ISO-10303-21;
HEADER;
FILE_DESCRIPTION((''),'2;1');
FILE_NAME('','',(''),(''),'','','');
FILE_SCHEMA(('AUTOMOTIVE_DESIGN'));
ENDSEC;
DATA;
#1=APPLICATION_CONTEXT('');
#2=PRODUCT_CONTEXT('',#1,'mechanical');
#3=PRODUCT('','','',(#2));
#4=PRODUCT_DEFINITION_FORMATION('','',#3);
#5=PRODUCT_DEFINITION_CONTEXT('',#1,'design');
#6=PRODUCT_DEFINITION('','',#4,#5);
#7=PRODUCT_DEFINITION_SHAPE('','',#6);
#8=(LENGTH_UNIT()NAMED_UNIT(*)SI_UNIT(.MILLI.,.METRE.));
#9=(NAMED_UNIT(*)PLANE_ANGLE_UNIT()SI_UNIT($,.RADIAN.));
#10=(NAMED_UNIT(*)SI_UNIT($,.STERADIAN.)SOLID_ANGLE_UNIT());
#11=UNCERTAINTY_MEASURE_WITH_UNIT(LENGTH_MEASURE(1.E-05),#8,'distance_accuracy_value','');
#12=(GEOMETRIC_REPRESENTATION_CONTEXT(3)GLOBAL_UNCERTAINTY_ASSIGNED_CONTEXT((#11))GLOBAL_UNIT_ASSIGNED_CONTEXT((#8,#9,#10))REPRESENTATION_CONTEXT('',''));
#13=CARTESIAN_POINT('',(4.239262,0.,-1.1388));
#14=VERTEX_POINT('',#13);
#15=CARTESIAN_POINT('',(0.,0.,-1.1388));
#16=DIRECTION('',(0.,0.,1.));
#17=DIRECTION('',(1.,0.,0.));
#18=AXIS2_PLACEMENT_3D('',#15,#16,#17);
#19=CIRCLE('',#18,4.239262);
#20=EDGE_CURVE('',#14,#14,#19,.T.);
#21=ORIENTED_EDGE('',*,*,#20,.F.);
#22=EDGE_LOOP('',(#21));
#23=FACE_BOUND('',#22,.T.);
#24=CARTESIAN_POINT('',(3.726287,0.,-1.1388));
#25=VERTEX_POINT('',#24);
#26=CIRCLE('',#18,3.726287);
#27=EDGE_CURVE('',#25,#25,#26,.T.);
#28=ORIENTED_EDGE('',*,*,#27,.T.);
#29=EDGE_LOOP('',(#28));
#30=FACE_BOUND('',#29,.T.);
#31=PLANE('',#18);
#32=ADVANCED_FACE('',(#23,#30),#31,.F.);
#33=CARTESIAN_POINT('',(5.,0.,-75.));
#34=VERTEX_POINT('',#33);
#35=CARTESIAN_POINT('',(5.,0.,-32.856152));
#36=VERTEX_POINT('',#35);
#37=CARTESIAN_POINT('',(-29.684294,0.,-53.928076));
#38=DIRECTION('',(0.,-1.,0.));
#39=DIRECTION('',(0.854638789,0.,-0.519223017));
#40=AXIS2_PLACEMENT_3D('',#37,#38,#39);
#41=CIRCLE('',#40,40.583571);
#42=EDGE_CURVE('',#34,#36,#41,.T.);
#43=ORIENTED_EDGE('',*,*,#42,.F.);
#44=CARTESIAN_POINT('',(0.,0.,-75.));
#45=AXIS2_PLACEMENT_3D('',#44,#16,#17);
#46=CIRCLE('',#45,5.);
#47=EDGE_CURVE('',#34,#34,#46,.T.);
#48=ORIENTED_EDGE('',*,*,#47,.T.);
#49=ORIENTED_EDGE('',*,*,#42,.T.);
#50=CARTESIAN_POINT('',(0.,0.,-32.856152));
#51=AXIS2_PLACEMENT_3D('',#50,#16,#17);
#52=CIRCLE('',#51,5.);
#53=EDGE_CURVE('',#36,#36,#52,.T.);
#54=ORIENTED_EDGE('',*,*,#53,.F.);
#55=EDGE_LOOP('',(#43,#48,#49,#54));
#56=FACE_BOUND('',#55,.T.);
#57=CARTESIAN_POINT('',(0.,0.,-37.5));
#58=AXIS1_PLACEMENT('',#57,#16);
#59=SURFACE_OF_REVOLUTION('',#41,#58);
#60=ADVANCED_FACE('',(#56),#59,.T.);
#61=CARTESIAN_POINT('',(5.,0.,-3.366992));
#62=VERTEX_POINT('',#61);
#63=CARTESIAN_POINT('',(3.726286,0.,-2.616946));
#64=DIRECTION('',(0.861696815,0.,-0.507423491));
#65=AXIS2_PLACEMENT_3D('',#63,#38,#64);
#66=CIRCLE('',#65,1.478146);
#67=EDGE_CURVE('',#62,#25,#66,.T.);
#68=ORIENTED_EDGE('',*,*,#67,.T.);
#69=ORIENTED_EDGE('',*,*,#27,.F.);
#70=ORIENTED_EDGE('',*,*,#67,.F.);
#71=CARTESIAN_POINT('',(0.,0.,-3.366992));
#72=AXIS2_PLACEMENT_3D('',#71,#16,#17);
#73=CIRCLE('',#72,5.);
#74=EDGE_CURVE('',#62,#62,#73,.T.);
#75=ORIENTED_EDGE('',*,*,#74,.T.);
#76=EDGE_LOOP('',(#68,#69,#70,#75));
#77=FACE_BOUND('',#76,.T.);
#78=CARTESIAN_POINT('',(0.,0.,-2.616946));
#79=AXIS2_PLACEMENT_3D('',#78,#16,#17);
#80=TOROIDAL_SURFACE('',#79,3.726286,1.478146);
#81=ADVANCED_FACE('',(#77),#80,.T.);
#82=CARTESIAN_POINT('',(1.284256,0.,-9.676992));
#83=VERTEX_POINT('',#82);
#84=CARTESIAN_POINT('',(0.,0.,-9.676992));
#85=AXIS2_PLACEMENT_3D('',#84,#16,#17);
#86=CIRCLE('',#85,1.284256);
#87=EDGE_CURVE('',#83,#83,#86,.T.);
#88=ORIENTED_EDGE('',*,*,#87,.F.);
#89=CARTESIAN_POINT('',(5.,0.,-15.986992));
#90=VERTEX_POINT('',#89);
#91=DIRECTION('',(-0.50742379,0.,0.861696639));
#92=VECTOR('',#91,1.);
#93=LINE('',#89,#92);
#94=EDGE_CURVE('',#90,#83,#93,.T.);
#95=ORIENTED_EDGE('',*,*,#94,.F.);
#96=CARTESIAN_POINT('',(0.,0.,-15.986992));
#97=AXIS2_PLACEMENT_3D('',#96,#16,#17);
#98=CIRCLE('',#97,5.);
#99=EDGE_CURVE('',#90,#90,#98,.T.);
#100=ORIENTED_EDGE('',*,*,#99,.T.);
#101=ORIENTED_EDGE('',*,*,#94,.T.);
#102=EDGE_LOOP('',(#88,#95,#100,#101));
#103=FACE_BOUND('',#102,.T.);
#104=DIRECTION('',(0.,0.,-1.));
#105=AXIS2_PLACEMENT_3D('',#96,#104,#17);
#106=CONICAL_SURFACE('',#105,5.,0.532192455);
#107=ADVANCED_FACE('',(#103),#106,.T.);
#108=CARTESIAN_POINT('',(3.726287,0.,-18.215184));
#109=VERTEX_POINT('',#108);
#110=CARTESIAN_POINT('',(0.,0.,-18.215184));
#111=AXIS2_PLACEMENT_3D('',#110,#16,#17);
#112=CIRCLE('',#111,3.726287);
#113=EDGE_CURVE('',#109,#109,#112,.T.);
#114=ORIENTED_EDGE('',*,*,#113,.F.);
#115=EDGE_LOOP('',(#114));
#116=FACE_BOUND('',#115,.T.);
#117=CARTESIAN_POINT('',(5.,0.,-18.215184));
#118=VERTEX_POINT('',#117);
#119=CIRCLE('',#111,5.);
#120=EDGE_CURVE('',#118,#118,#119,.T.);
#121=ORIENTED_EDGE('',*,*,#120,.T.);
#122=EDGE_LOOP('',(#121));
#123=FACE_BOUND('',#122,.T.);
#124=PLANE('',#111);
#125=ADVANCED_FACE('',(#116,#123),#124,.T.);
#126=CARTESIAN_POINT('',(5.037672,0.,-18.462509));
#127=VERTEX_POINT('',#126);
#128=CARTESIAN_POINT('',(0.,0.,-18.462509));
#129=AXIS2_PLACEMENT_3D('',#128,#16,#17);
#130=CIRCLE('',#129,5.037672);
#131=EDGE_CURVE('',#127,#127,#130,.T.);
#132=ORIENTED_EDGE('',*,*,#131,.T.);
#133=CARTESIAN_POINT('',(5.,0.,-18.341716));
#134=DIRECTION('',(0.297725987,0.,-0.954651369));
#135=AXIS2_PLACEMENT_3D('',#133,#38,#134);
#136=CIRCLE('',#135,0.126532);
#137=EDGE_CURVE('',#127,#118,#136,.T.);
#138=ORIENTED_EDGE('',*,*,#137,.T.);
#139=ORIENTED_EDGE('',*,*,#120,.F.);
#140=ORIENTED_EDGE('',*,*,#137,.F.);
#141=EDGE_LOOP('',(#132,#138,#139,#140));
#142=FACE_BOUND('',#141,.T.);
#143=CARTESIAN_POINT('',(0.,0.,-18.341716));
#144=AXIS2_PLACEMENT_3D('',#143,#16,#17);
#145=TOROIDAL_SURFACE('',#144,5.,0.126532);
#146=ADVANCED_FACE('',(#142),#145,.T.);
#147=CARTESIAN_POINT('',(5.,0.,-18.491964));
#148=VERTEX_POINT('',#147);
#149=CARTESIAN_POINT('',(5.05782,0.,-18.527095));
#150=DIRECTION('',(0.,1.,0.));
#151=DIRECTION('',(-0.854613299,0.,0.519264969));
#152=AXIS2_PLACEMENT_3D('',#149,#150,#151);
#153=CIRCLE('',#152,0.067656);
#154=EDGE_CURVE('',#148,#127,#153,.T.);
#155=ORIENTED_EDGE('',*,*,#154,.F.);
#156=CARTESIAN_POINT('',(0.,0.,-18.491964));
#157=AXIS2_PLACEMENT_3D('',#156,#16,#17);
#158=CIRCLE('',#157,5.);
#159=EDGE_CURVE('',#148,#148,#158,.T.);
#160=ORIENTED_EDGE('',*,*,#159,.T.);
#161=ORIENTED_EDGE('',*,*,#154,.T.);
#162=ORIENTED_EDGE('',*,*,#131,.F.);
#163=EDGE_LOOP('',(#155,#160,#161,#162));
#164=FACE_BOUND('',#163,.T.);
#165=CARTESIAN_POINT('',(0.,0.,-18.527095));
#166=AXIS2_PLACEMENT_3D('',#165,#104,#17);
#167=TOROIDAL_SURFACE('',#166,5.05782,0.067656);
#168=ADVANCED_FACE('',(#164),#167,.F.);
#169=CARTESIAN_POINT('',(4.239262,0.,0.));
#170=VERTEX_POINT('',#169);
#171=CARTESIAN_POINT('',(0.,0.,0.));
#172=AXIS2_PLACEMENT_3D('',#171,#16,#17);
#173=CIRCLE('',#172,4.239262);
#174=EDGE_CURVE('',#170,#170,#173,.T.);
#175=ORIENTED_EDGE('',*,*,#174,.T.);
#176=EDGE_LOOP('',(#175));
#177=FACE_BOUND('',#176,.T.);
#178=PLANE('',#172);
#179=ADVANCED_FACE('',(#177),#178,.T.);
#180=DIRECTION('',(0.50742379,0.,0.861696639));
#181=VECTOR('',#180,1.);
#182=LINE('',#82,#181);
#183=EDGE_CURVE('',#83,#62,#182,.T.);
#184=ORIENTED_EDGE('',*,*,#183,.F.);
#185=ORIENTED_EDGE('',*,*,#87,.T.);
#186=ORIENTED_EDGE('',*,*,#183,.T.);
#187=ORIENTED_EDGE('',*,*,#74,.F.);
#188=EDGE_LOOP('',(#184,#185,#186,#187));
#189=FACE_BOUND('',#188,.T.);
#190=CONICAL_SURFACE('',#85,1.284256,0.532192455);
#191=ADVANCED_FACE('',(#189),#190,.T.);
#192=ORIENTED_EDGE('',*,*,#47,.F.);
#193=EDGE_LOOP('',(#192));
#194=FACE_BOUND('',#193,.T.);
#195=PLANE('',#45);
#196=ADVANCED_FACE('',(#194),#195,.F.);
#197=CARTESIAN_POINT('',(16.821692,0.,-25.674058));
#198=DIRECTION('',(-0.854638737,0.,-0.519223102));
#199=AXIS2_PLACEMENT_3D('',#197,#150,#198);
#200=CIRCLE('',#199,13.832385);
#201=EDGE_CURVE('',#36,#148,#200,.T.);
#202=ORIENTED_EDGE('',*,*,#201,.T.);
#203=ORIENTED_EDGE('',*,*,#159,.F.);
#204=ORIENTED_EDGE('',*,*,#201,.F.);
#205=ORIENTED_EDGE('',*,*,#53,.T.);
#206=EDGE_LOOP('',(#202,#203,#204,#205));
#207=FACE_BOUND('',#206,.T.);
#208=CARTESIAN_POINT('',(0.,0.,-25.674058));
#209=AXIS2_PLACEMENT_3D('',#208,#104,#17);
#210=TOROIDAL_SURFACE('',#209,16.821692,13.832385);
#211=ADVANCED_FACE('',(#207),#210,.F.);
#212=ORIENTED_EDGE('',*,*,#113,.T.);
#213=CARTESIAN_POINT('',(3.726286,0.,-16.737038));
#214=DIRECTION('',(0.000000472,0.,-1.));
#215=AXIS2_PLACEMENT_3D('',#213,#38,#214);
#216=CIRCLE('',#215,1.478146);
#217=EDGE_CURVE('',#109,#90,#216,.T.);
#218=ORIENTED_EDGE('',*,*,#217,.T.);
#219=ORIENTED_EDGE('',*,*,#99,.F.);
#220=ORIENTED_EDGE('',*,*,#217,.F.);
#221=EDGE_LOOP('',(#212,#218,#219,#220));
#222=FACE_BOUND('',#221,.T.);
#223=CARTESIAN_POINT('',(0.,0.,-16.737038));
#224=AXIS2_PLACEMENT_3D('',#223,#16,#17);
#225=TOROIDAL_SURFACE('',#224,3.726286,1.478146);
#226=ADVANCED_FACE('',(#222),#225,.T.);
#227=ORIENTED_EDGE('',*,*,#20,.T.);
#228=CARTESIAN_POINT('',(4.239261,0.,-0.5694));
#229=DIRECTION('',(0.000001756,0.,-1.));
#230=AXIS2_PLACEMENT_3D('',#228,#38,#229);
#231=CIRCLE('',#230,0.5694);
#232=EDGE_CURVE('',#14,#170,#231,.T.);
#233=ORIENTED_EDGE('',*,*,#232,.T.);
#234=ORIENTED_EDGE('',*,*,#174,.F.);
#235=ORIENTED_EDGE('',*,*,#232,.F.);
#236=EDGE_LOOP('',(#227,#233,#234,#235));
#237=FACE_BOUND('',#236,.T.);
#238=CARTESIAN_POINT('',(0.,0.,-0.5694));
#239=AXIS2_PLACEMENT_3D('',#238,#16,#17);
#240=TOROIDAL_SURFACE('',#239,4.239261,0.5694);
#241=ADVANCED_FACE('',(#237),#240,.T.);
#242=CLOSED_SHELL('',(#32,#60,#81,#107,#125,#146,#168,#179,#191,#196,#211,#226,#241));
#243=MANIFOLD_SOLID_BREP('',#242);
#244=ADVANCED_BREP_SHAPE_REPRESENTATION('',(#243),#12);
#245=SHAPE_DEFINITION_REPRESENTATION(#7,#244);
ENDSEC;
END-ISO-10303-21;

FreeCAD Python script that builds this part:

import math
import FreeCAD as App
import Part
import Sketcher

doc = App.newDocument("Part")
body = doc.addObject("PartDesign::Body", "Body")

sketch1 = body.newObject("Sketcher::SketchObject", "Sketch")
sketch1.AttachmentSupport = (doc.getObject("XZ_Plane"), [""])
sketch1.MapMode = "FlatFace"
sketch1.addGeometry([
    Part.LineSegment(App.Vector(0, -75, 0), App.Vector(5, -75, 0)),
    Part.ArcOfCircle(Part.Circle(App.Vector(-29.684294, -53.928076, 0), App.Vector(0, 0, 1), 40.583571), math.radians(-31.280147), math.radians(31.280147)),
    Part.ArcOfCircle(Part.Circle(App.Vector(16.821692, -25.674058, 0), App.Vector(0, 0, 1), 13.832385), math.radians(148.719847), math.radians(211.280153)),
    Part.ArcOfCircle(Part.Circle(App.Vector(5.05782, -18.527095, 0), App.Vector(0, 0, 1), 0.067656), math.radians(107.325273), math.radians(148.71704)),
    Part.ArcOfCircle(Part.Circle(App.Vector(5, -18.341716, 0), App.Vector(0, 0, 1), 0.126532), math.radians(-72.678929), math.radians(90.000127)),
    Part.LineSegment(App.Vector(5, -18.215184, 0), App.Vector(3.726287, -18.215184, 0)),
    Part.ArcOfCircle(Part.Circle(App.Vector(3.726286, -16.737038, 0), App.Vector(0, 0, 1), 1.478146), math.radians(-89.999973), math.radians(30.492362)),
    Part.LineSegment(App.Vector(5, -15.986992, 0), App.Vector(1.284256, -9.676992, 0)),
    Part.LineSegment(App.Vector(1.284256, -9.676992, 0), App.Vector(5, -3.366992, 0)),
    Part.ArcOfCircle(Part.Circle(App.Vector(3.726286, -2.616946, 0), App.Vector(0, 0, 1), 1.478146), math.radians(-30.492362), math.radians(89.999973)),
    Part.LineSegment(App.Vector(3.726287, -1.1388, 0), App.Vector(4.239262, -1.1388, 0)),
    Part.ArcOfCircle(Part.Circle(App.Vector(4.239261, -0.5694, 0), App.Vector(0, 0, 1), 0.5694), math.radians(-89.999899), math.radians(89.999899)),
    Part.LineSegment(App.Vector(4.239262, 0, 0), App.Vector(0, 0, 0)),
    Part.LineSegment(App.Vector(0, 0, 0), App.Vector(0, -75, 0)),
], False)
sketch1.addConstraint([
    Sketcher.Constraint("Coincident", 0, 2, 1, 1),
    Sketcher.Constraint("Tangent", 1, 2, 2, 2),
    Sketcher.Constraint("Coincident", 2, 1, 3, 2),
    Sketcher.Constraint("Coincident", 3, 1, 4, 1),
    Sketcher.Constraint("Coincident", 4, 2, 5, 1),
    Sketcher.Constraint("Tangent", 5, 2, 6, 1),
    Sketcher.Constraint("Tangent", 6, 2, 7, 1),
    Sketcher.Constraint("Coincident", 7, 2, 8, 1),
    Sketcher.Constraint("Tangent", 8, 2, 9, 1),
    Sketcher.Constraint("Tangent", 9, 2, 10, 1),
    Sketcher.Constraint("Tangent", 10, 2, 11, 1),
    Sketcher.Constraint("Tangent", 11, 2, 12, 1),
    Sketcher.Constraint("Coincident", 12, 2, 13, 1),
    Sketcher.Constraint("Coincident", 13, 2, 0, 1),
    Sketcher.Constraint("Horizontal", 0),
    Sketcher.Constraint("Horizontal", 5),
    Sketcher.Constraint("Horizontal", 10),
    Sketcher.Constraint("Horizontal", 12),
    Sketcher.Constraint("Vertical", 13),
    Sketcher.Constraint("Coincident", 12, 2, -1, 1),
    Sketcher.Constraint("Equal", 6, 9),
    Sketcher.Constraint("Vertical", 6, 3, 9, 3),
    Sketcher.Constraint("Vertical", 4, 3, 0, 2),
    Sketcher.Constraint("Vertical", 0, 2, 1, 2),
    Sketcher.Constraint("Vertical", 1, 2, 2, 1),
    Sketcher.Constraint("Vertical", 2, 1, 4, 2),
    Sketcher.Constraint("Vertical", 4, 2, 6, 2),
    Sketcher.Constraint("Vertical", 6, 2, 8, 2),
    Sketcher.Constraint("DistanceX", 0, 1, 0, 2, 5.0),
    Sketcher.Constraint("DistanceY", 13, 2, 13, 1, 75.0),
    Sketcher.Constraint("Radius", 11, 0.5694),
    Sketcher.Constraint("Radius", 1, 40.583571),
    Sketcher.Constraint("Radius", 4, 0.126532),
    Sketcher.Constraint("DistanceY", 6, 2, 7, 2, 6.31),
    Sketcher.Constraint("Radius", 2, 13.832385),
    Sketcher.Constraint("Radius", 3, 0.067656),
    Sketcher.Constraint("Radius", 6, 1.478146),
    Sketcher.Constraint("DistanceX", 5, 2, 5, 1, 1.273713),
    Sketcher.Constraint("DistanceX", 10, 1, 10, 2, 0.512975),
    Sketcher.Constraint("DistanceX", -1, 1, 3, 3, 5.05782),
    Sketcher.Constraint("DistanceY", 3, 1, -1, 1, 18.462509),
])
revolution = body.newObject("PartDesign::Revolution", "Revolution")
revolution.Profile = sketch1
revolution.ReferenceAxis = (sketch1, ["V_Axis"])
revolution.Angle = 360

doc.recompute()
